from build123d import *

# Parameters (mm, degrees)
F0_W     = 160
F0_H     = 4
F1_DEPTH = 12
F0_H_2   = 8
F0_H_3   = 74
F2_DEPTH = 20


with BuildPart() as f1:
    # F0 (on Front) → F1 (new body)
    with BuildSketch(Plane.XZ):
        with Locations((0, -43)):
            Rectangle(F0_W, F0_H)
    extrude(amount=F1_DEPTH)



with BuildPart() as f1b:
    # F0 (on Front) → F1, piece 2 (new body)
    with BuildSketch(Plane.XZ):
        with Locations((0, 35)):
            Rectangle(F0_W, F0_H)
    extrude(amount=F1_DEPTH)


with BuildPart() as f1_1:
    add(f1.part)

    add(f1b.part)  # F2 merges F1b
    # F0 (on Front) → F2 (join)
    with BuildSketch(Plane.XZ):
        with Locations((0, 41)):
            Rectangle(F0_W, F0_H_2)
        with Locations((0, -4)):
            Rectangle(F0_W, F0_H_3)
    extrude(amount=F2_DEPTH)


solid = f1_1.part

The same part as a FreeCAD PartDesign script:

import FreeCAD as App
import Part
import Sketcher

V = App.Vector
Q = App.Units.Quantity

doc = App.newDocument("Part")
body = doc.addObject("PartDesign::Body", "Body")

sketch1 = body.newObject("Sketcher::SketchObject", "Sketch")
sketch1.AttachmentSupport = (doc.getObject("XZ_Plane"), [""])
sketch1.MapMode = "FlatFace"
sketch1.addGeometry(Part.LineSegment(V(-80, -41, 0), V(-80, -45, 0)), False)
sketch1.addGeometry(Part.LineSegment(V(-80, -45, 0), V(80, -45, 0)), False)
sketch1.addGeometry(Part.LineSegment(V(80, -45, 0), V(80, -41, 0)), False)
sketch1.addGeometry(Part.LineSegment(V(80, -41, 0), V(-80, -41, 0)), False)
sketch1.addConstraint(Sketcher.Constraint("Coincident", 0, 2, 1, 1))
sketch1.addConstraint(Sketcher.Constraint("Coincident", 1, 2, 2, 1))
sketch1.addConstraint(Sketcher.Constraint("Coincident", 2, 2, 3, 1))
sketch1.addConstraint(Sketcher.Constraint("Coincident", 3, 2, 0, 1))
sketch1.addConstraint(Sketcher.Constraint("Vertical", 0))
sketch1.addConstraint(Sketcher.Constraint("Horizontal", 1))
sketch1.addConstraint(Sketcher.Constraint("Vertical", 2))
sketch1.addConstraint(Sketcher.Constraint("Horizontal", 3))
sketch1.addConstraint(Sketcher.Constraint("DistanceX", 1, 1, 1, 2, Q("160 mm")))
sketch1.addConstraint(Sketcher.Constraint("DistanceY", 0, 2, 0, 1, Q("4 mm")))
sketch1.addConstraint(Sketcher.Constraint("DistanceX", 0, 2, -1, 1, Q("80 mm")))
sketch1.addConstraint(Sketcher.Constraint("DistanceY", 0, 2, -1, 1, Q("45 mm")))
pad1 = body.newObject("PartDesign::Pad", "Pad")
pad1.Profile = sketch1
pad1.Length = 12
body2 = doc.addObject("PartDesign::Body", "Body001")

sketch2 = body2.newObject("Sketcher::SketchObject", "Sketch001")
sketch2.AttachmentSupport = (doc.getObject("XZ_Plane001"), [""])
sketch2.MapMode = "FlatFace"
sketch2.addGeometry(Part.LineSegment(V(-80, 37, 0), V(-80, 33, 0)), False)
sketch2.addGeometry(Part.LineSegment(V(-80, 33, 0), V(80, 33, 0)), False)
sketch2.addGeometry(Part.LineSegment(V(80, 33, 0), V(80, 37, 0)), False)
sketch2.addGeometry(Part.LineSegment(V(80, 37, 0), V(-80, 37, 0)), False)
sketch2.addConstraint(Sketcher.Constraint("Coincident", 0, 2, 1, 1))
sketch2.addConstraint(Sketcher.Constraint("Coincident", 1, 2, 2, 1))
sketch2.addConstraint(Sketcher.Constraint("Coincident", 2, 2, 3, 1))
sketch2.addConstraint(Sketcher.Constraint("Coincident", 3, 2, 0, 1))
sketch2.addConstraint(Sketcher.Constraint("Vertical", 0))
sketch2.addConstraint(Sketcher.Constraint("Horizontal", 1))
sketch2.addConstraint(Sketcher.Constraint("Vertical", 2))
sketch2.addConstraint(Sketcher.Constraint("Horizontal", 3))
sketch2.addConstraint(Sketcher.Constraint("DistanceX", 1, 1, 1, 2, Q("160 mm")))
sketch2.addConstraint(Sketcher.Constraint("DistanceY", 0, 2, 0, 1, Q("4 mm")))
sketch2.addConstraint(Sketcher.Constraint("DistanceX", 0, 2, -1, 1, Q("80 mm")))
sketch2.addConstraint(Sketcher.Constraint("DistanceY", -1, 1, 0, 2, Q("33 mm")))
pad2 = body2.newObject("PartDesign::Pad", "Pad001")
pad2.Profile = sketch2
pad2.Length = 12
body.AllowCompound = True
doc.recompute()

boolean = body.newObject("PartDesign::Boolean", "Boolean")
boolean.Type = "Fuse"
boolean.addObjects([body2])

sketch3 = body.newObject("Sketcher::SketchObject", "Sketch002")
sketch3.AttachmentSupport = (doc.getObject("XZ_Plane"), [""])
sketch3.MapMode = "FlatFace"
sketch3.addGeometry(Part.LineSegment(V(-80, 45, 0), V(-80, 37, 0)), False)
sketch3.addGeometry(Part.LineSegment(V(-80, 37, 0), V(80, 37, 0)), False)
sketch3.addGeometry(Part.LineSegment(V(80, 37, 0), V(80, 45, 0)), False)
sketch3.addGeometry(Part.LineSegment(V(80, 45, 0), V(-80, 45, 0)), False)
sketch3.addGeometry(Part.LineSegment(V(-80, 33, 0), V(-80, -41, 0)), False)
sketch3.addGeometry(Part.LineSegment(V(-80, -41, 0), V(80, -41, 0)), False)
sketch3.addGeometry(Part.LineSegment(V(80, -41, 0), V(80, 33, 0)), False)
sketch3.addGeometry(Part.LineSegment(V(80, 33, 0), V(-80, 33, 0)), False)
sketch3.addConstraint(Sketcher.Constraint("Coincident", 0, 2, 1, 1))
sketch3.addConstraint(Sketcher.Constraint("Coincident", 1, 2, 2, 1))
sketch3.addConstraint(Sketcher.Constraint("Coincident", 2, 2, 3, 1))
sketch3.addConstraint(Sketcher.Constraint("Coincident", 3, 2, 0, 1))
sketch3.addConstraint(Sketcher.Constraint("Coincident", 4, 2, 5, 1))
sketch3.addConstraint(Sketcher.Constraint("Coincident", 5, 2, 6, 1))
sketch3.addConstraint(Sketcher.Constraint("Coincident", 6, 2, 7, 1))
sketch3.addConstraint(Sketcher.Constraint("Coincident", 7, 2, 4, 1))
sketch3.addConstraint(Sketcher.Constraint("Vertical", 0))
sketch3.addConstraint(Sketcher.Constraint("Horizontal", 1))
sketch3.addConstraint(Sketcher.Constraint("Vertical", 2))
sketch3.addConstraint(Sketcher.Constraint("Horizontal", 3))
sketch3.addConstraint(Sketcher.Constraint("Vertical", 4))
sketch3.addConstraint(Sketcher.Constraint("Horizontal", 5))
sketch3.addConstraint(Sketcher.Constraint("Vertical", 6))
sketch3.addConstraint(Sketcher.Constraint("Horizontal", 7))
sketch3.addConstraint(Sketcher.Constraint("Vertical", 3, 2, 4, 2))
sketch3.addConstraint(Sketcher.Constraint("Vertical", 2, 2, 5, 2))
sketch3.addConstraint(Sketcher.Constraint("DistanceX", 1, 1, 1, 2, Q("160 mm")))
sketch3.addConstraint(Sketcher.Constraint("DistanceY", 0, 2, 0, 1, Q("8 mm")))
sketch3.addConstraint(Sketcher.Constraint("DistanceY", 4, 2, 4, 1, Q("74 mm")))
sketch3.addConstraint(Sketcher.Constraint("DistanceX", 0, 2, -1, 1, Q("80 mm")))
sketch3.addConstraint(Sketcher.Constraint("DistanceY", -1, 1, 0, 2, Q("37 mm")))
sketch3.addConstraint(Sketcher.Constraint("DistanceY", 4, 2, -1, 1, Q("41 mm")))
pad3 = body.newObject("PartDesign::Pad", "Pad002")
pad3.Profile = sketch3
pad3.Length = 20

doc.recompute()
